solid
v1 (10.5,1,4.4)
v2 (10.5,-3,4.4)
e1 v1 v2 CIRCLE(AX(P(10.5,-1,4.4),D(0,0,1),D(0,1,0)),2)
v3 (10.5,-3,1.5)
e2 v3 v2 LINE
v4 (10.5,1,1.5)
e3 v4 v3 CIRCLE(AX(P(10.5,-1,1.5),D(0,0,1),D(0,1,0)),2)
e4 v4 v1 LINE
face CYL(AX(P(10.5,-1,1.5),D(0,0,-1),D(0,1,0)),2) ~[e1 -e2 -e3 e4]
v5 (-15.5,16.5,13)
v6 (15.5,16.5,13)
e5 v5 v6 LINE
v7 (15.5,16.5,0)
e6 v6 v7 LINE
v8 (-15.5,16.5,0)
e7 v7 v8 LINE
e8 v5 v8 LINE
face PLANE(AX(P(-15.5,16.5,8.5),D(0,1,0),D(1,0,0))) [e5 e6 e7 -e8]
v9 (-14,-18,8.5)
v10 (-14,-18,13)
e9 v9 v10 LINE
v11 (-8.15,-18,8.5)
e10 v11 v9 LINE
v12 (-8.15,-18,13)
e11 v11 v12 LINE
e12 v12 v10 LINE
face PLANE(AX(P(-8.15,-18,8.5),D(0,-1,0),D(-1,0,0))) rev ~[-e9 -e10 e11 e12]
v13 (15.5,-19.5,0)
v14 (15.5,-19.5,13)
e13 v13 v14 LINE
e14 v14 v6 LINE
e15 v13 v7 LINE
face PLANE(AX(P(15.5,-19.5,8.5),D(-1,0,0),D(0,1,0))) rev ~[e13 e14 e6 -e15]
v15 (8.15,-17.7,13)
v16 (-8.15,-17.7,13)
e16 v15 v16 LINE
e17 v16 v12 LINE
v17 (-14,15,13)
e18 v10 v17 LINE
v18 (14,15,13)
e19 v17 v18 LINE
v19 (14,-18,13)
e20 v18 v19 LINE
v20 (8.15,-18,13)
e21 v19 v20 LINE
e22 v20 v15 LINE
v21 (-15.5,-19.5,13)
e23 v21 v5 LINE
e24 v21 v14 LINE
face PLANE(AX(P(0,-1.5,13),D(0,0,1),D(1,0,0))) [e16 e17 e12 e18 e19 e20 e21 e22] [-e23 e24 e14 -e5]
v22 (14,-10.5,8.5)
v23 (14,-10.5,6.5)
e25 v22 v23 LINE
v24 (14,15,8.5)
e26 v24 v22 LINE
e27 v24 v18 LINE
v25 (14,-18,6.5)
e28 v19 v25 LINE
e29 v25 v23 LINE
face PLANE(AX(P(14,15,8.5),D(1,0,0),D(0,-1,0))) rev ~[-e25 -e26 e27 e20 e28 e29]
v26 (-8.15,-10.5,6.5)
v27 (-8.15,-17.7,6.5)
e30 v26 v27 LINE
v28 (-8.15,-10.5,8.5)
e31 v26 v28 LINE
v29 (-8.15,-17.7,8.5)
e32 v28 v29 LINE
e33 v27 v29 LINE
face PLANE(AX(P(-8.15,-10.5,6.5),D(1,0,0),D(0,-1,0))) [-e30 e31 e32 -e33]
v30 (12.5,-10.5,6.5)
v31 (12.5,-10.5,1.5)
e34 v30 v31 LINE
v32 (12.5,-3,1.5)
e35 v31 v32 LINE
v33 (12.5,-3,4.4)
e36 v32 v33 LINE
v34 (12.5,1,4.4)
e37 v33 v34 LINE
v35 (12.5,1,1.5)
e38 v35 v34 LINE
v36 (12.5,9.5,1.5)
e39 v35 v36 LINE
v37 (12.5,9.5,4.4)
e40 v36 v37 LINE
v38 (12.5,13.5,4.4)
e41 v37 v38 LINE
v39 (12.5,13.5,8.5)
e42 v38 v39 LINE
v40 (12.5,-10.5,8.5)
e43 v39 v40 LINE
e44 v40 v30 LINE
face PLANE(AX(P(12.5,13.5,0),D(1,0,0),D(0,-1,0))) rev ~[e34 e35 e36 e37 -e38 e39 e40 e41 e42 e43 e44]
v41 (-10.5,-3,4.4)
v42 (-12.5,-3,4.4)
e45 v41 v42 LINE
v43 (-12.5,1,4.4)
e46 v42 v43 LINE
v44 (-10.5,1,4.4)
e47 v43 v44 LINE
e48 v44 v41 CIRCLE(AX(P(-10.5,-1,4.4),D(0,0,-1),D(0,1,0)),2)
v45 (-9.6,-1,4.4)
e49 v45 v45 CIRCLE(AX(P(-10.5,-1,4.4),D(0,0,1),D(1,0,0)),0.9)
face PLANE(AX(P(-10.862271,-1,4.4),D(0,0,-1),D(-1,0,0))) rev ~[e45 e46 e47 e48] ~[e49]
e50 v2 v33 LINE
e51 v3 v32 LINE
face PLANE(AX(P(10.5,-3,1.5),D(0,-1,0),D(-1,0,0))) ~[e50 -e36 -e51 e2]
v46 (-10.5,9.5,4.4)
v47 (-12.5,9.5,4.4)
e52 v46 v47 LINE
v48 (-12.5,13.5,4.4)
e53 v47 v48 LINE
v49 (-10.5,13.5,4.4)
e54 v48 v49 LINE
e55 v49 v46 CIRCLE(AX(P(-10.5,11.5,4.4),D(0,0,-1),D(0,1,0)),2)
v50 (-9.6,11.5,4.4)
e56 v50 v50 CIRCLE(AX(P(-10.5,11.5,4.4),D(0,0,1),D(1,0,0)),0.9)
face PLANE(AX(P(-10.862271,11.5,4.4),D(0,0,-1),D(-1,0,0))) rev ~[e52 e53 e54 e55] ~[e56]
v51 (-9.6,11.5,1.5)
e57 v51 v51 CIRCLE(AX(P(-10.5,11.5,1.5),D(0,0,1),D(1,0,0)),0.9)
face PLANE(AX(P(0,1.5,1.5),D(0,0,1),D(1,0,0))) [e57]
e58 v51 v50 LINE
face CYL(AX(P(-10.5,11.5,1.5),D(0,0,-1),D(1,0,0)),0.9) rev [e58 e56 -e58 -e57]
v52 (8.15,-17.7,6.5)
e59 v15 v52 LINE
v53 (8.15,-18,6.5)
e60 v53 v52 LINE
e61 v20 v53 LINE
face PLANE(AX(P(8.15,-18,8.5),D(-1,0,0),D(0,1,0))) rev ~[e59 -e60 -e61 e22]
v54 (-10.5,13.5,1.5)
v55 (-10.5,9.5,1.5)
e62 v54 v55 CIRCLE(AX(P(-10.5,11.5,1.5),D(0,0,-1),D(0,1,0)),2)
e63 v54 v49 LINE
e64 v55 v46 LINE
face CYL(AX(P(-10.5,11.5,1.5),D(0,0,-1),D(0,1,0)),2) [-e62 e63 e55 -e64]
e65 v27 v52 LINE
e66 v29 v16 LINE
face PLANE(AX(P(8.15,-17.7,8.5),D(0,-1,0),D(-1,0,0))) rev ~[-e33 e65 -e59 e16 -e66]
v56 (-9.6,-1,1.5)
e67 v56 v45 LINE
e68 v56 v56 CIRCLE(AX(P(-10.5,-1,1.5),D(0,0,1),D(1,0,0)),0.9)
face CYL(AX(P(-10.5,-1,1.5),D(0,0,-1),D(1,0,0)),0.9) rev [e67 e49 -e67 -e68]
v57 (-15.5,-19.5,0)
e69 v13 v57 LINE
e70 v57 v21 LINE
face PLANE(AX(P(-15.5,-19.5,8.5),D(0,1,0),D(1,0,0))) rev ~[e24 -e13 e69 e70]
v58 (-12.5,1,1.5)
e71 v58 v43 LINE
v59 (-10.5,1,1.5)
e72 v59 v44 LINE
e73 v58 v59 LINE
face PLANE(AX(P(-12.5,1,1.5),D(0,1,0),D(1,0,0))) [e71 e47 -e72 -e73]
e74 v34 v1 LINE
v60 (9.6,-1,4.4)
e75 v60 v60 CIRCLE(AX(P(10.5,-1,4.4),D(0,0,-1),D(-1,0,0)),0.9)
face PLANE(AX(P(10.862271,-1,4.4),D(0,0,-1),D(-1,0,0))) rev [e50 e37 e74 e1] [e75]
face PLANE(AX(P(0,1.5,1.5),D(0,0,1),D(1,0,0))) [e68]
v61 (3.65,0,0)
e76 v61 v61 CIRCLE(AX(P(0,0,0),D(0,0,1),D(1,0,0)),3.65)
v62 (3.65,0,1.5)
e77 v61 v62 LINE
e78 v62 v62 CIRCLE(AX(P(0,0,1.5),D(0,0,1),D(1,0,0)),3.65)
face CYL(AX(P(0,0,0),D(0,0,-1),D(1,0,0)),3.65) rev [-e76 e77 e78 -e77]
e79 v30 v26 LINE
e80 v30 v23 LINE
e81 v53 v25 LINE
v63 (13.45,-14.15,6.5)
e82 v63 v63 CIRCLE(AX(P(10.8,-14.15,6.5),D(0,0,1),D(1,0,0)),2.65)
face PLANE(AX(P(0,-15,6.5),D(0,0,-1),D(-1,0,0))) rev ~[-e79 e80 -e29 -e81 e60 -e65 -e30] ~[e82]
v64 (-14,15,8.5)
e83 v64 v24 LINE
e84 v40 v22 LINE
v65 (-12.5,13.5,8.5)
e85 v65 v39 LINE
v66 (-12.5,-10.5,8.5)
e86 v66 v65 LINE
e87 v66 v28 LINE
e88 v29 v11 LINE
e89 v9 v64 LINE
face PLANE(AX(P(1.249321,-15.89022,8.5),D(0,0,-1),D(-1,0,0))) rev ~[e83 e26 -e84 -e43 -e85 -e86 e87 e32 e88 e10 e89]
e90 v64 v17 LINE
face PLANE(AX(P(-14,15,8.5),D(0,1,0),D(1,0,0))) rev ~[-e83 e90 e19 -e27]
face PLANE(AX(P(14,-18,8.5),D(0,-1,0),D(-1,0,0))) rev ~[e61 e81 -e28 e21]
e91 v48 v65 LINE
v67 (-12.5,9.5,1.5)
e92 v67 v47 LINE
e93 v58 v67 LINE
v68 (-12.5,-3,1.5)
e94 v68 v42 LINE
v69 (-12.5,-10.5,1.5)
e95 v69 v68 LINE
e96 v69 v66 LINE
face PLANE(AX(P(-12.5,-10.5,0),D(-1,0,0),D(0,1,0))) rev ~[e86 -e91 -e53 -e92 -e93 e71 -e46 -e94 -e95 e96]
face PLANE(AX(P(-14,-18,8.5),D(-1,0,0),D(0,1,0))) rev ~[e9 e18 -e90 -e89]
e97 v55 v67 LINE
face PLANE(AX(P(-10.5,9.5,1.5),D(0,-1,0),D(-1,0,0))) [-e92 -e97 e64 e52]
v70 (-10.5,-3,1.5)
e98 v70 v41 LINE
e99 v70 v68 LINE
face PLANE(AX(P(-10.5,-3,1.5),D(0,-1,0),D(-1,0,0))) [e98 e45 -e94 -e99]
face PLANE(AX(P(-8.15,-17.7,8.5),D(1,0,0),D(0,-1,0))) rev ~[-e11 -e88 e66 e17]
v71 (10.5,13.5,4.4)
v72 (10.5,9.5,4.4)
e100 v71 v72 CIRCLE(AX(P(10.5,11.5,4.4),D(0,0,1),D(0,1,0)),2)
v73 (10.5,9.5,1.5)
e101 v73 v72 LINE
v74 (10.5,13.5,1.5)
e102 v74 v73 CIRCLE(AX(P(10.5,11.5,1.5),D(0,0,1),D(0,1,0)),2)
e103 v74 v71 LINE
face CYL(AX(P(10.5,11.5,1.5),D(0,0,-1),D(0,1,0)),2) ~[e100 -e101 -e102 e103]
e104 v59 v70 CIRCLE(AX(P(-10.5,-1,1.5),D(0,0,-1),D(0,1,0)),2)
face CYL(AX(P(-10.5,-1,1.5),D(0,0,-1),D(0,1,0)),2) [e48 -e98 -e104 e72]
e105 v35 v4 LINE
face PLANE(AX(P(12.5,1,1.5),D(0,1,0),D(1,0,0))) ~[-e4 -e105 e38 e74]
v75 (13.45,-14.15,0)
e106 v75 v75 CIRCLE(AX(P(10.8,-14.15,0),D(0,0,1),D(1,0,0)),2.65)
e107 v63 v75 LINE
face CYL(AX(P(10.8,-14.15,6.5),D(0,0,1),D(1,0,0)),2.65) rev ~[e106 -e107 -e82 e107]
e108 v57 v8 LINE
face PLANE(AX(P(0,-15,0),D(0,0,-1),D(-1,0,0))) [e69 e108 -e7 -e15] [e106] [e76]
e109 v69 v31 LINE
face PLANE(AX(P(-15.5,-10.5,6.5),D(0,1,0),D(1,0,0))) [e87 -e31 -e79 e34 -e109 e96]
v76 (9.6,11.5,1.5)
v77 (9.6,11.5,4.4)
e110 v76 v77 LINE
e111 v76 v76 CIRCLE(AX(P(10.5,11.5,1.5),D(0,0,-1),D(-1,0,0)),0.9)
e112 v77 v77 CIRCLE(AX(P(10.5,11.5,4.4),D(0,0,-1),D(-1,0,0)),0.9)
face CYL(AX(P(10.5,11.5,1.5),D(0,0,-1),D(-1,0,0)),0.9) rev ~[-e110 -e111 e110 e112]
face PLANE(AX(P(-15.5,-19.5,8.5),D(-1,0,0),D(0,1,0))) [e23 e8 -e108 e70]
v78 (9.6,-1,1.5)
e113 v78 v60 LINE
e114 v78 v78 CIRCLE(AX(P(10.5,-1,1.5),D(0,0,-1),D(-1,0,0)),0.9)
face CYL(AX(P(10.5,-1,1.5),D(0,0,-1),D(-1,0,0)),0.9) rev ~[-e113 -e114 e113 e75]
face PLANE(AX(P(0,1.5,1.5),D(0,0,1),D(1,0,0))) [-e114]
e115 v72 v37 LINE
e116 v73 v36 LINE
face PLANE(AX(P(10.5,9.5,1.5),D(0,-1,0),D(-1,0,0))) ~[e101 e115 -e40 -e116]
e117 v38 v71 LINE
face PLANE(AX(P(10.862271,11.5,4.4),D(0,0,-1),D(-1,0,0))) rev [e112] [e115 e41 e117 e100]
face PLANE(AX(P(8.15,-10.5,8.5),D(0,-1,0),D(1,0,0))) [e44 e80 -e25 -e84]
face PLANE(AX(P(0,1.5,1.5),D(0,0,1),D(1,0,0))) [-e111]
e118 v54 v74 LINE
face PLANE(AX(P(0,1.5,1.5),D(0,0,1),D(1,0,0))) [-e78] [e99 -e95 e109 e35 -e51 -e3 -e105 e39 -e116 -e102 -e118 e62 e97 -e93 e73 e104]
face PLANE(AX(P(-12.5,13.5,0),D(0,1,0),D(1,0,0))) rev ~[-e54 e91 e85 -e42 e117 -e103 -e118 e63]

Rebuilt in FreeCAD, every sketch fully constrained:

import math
import FreeCAD as App
import Part
import Sketcher

V = App.Vector
Q = App.Units.Quantity


def add_polygon(sketch, points):
    """Adds a closed chain of lines whose ends are joined by coincident constraints."""
    first, n = sketch.GeometryCount, len(points)
    for a, b in zip(points, points[1:] + points[:1]):
        sketch.addGeometry(Part.LineSegment(App.Vector(*a, 0), App.Vector(*b, 0)), False)
    for i in range(n):
        sketch.addConstraint(Sketcher.Constraint("Coincident", first + i, 2, first + (i + 1) % n, 1))

doc = App.newDocument("Part")
body = doc.addObject("PartDesign::Body", "Body")

sketch1 = body.newObject("Sketcher::SketchObject", "Sketch")
sketch1.AttachmentSupport = (doc.getObject("XY_Plane"), [""])
sketch1.MapMode = "FlatFace"
add_polygon(sketch1, [(-12.5, 13.5), (-12.5, -10.5), (12.5, -10.5), (12.5, 13.5)])
sketch1.addGeometry(Part.Circle(V(0, 0, 0), V(0, 0, 1), 3.65), False)
sketch1.addConstraint([
    Sketcher.Constraint("Vertical", 0),
    Sketcher.Constraint("Horizontal", 1),
    Sketcher.Constraint("Vertical", 2),
    Sketcher.Constraint("Horizontal", 3),
    Sketcher.Constraint("Coincident", 4, 3, -1, 1),
    Sketcher.Constraint("Diameter", 4, Q("7.3 mm")),
    Sketcher.Constraint("DistanceX", 1, 1, 1, 2, Q("25 mm")),
    Sketcher.Constraint("DistanceY", 0, 2, 0, 1, Q("24 mm")),
    Sketcher.Constraint("DistanceX", 0, 2, -1, 1, Q("12.5 mm")),
    Sketcher.Constraint("DistanceY", 0, 2, -1, 1, Q("10.5 mm")),
])
pad1 = body.newObject("PartDesign::Pad", "Pad")
pad1.Profile = sketch1
pad1.Length = 1.5

sketch2 = body.newObject("Sketcher::SketchObject", "Sketch001")
sketch2.AttachmentSupport = (doc.getObject("XY_Plane"), [""])
sketch2.MapMode = "FlatFace"
add_polygon(sketch2, [(-12.5, 13.5), (-12.5, -10.5), (-15.5, -10.5), (-15.5, 16.5), (15.5, 16.5), (15.5, -10.5), (12.5, -10.5), (12.5, 13.5)])
sketch2.addConstraint([
    Sketcher.Constraint("Vertical", 0),
    Sketcher.Constraint("Horizontal", 1),
    Sketcher.Constraint("Vertical", 2),
    Sketcher.Constraint("Horizontal", 3),
    Sketcher.Constraint("Vertical", 4),
    Sketcher.Constraint("Horizontal", 5),
    Sketcher.Constraint("Vertical", 6),
    Sketcher.Constraint("Horizontal", 7),
    Sketcher.Constraint("Symmetric", 1, 2, 4, 2, -2),
    Sketcher.Constraint("Equal", 1, 5),
    Sketcher.Constraint("DistanceX", 1, 2, 1, 1, Q("3 mm")),
    Sketcher.Constraint("DistanceX", 3, 1, 3, 2, Q("31 mm")),
    Sketcher.Constraint("DistanceY", 0, 2, 0, 1, Q("24 mm")),
    Sketcher.Constraint("DistanceY", 2, 1, 2, 2, Q("27 mm")),
    Sketcher.Constraint("DistanceY", 0, 2, -1, 1, Q("10.5 mm")),
])
pad2 = body.newObject("PartDesign::Pad", "Pad001")
pad2.Profile = sketch2
pad2.Length = 8.5

sketch3 = body.newObject("Sketcher::SketchObject", "Sketch002")
sketch3.AttachmentSupport = (doc.getObject("XY_Plane"), [""])
sketch3.MapMode = "FlatFace"
sketch3.AttachmentOffset = App.Placement(V(0, 0, 1.5), App.Rotation())
sketch3.addGeometry([
    Part.LineSegment(V(-12.5, 9.5, 0), V(-10.5, 9.5, 0)),
    Part.ArcOfCircle(Part.Circle(V(-10.5, 11.5, 0), V(0, 0, 1), 2), math.radians(-90), math.radians(90)),
    Part.LineSegment(V(-10.5, 13.5, 0), V(-12.5, 13.5, 0)),
    Part.LineSegment(V(-12.5, 13.5, 0), V(-12.5, 9.5, 0)),
    Part.Circle(V(-10.5, 11.5, 0), V(0, 0, 1), 0.9),
    Part.LineSegment(V(-12.5, -3, 0), V(-10.5, -3, 0)),
    Part.ArcOfCircle(Part.Circle(V(-10.5, -1, 0), V(0, 0, 1), 2), math.radians(-90), math.radians(90)),
    Part.LineSegment(V(-10.5, 1, 0), V(-12.5, 1, 0)),
    Part.LineSegment(V(-12.5, 1, 0), V(-12.5, -3, 0)),
    Part.Circle(V(-10.5, -1, 0), V(0, 0, 1), 0.9),
], False)
sketch3.addConstraint([
    Sketcher.Constraint("Tangent", 0, 2, 1, 1),
    Sketcher.Constraint("Tangent", 1, 2, 2, 1),
    Sketcher.Constraint("Coincident", 2, 2, 3, 1),
    Sketcher.Constraint("Coincident", 3, 2, 0, 1),
    Sketcher.Constraint("Tangent", 5, 2, 6, 1),
    Sketcher.Constraint("Tangent", 6, 2, 7, 1),
    Sketcher.Constraint("Coincident", 7, 2, 8, 1),
    Sketcher.Constraint("Coincident", 8, 2, 5, 1),
    Sketcher.Constraint("Horizontal", 0),
    Sketcher.Constraint("Horizontal", 2),
    Sketcher.Constraint("Vertical", 3),
    Sketcher.Constraint("Horizontal", 5),
    Sketcher.Constraint("Horizontal", 7),
    Sketcher.Constraint("Vertical", 8),
    Sketcher.Constraint("Coincident", 4, 3, 1, 3),
    Sketcher.Constraint("Coincident", 9, 3, 6, 3),
    Sketcher.Constraint("Equal", 1, 6),
    Sketcher.Constraint("Equal", 4, 9),
    Sketcher.Constraint("Vertical", 4, 3, 6, 3),
    Sketcher.Constraint("Vertical", 3, 2, 7, 2),
    Sketcher.Constraint("Radius", 1, Q("2 mm")),
    Sketcher.Constraint("Diameter", 4, Q("1.8 mm")),
    Sketcher.Constraint("DistanceX", 0, 1, 0, 2, Q("2 mm")),
    Sketcher.Constraint("DistanceY", 6, 3, -1, 1, Q("1 mm")),
    Sketcher.Constraint("DistanceX", 1, 3, -1, 1, Q("10.5 mm")),
    Sketcher.Constraint("DistanceY", -1, 1, 1, 3, Q("11.5 mm")),
])
pad3 = body.newObject("PartDesign::Pad", "Pad002")
pad3.Profile = sketch3
pad3.Length = 2.9
doc.recompute()

mirrored = body.newObject("PartDesign::Mirrored", "Mirrored")
mirrored.Originals = [pad3]
mirrored.MirrorPlane = (doc.getObject("YZ_Plane"), [""])
body.Tip = mirrored

sketch4 = body.newObject("Sketcher::SketchObject", "Sketch003")
sketch4.AttachmentSupport = (doc.getObject("XY_Plane"), [""])
sketch4.MapMode = "FlatFace"
add_polygon(sketch4, [(15.5, -10.5), (15.5, -19.5), (-15.5, -19.5), (-15.5, -10.5)])
sketch4.addConstraint([
    Sketcher.Constraint("Vertical", 0),
    Sketcher.Constraint("Horizontal", 1),
    Sketcher.Constraint("Vertical", 2),
    Sketcher.Constraint("Horizontal", 3),
    Sketcher.Constraint("DistanceX", 1, 2, 1, 1, Q("31 mm")),
    Sketcher.Constraint("DistanceY", 0, 2, 0, 1, Q("9 mm")),
    Sketcher.Constraint("DistanceX", -1, 1, 0, 2, Q("15.5 mm")),
    Sketcher.Constraint("DistanceY", 0, 2, -1, 1, Q("19.5 mm")),
])
pad4 = body.newObject("PartDesign::Pad", "Pad003")
pad4.Profile = sketch4
pad4.Length = 6.5

sketch5 = body.newObject("Sketcher::SketchObject", "Sketch004")
sketch5.AttachmentSupport = (doc.getObject("XY_Plane"), [""])
sketch5.MapMode = "FlatFace"
sketch5.AttachmentOffset = App.Placement(V(0, 0, 6.5), App.Rotation())
sketch5.addGeometry(Part.Circle(V(10.8, -14.15, 0), V(0, 0, 1), 2.65), False)
sketch5.addConstraint([
    Sketcher.Constraint("Diameter", 0, Q("5.3 mm")),
    Sketcher.Constraint("DistanceX", -1, 1, 0, 3, Q("10.8 mm")),
    Sketcher.Constraint("DistanceY", 0, 3, -1, 1, Q("14.15 mm")),
])
pocket1 = body.newObject("PartDesign::Pocket", "Pocket")
pocket1.Profile = sketch5
pocket1.Length = 6.5

sketch6 = body.newObject("Sketcher::SketchObject", "Sketch005")
sketch6.AttachmentSupport = (doc.getObject("XY_Plane"), [""])
sketch6.MapMode = "FlatFace"
sketch6.AttachmentOffset = App.Placement(V(0, 0, 6.5), App.Rotation())
sketch6.addGeometry([
    Part.LineSegment(V(-8.15, -10.5, 0), V(-15.5, -10.5, 0)),
    Part.LineSegment(V(-15.5, -10.5, 0), V(-15.5, -19.5, 0)),
    Part.LineSegment(V(-15.5, -19.5, 0), V(15.5, -19.5, 0)),
    Part.LineSegment(V(15.5, -19.5, 0), V(15.5, -10.5, 0)),
    Part.LineSegment(V(15.5, -10.5, 0), V(8.15, -10.5, 0)),
    Part.LineSegment(V(8.15, -10.5, 0), V(8.15, -13.358125, 0)),
    Part.LineSegment(V(8.15, -13.358125, 0), V(8.27108, -13.358125, 0)),
    Part.ArcOfCircle(Part.Circle(V(10.8, -14.15, 0), V(0, 0, 1), 2.65), math.radians(-166.49704), math.radians(162.613209)),
    Part.LineSegment(V(8.223252, -14.768763, 0), V(8.15, -14.768763, 0)),
    Part.LineSegment(V(8.15, -14.768763, 0), V(8.15, -17.7, 0)),
    Part.LineSegment(V(8.15, -17.7, 0), V(-8.15, -17.7, 0)),
    Part.LineSegment(V(-8.15, -17.7, 0), V(-8.15, -10.5, 0)),
], False)
sketch6.addConstraint([
    Sketcher.Constraint("Coincident", 0, 2, 1, 1),
    Sketcher.Constraint("Coincident", 1, 2, 2, 1),
    Sketcher.Constraint("Coincident", 2, 2, 3, 1),
    Sketcher.Constraint("Coincident", 3, 2, 4, 1),
    Sketcher.Constraint("Coincident", 4, 2, 5, 1),
    Sketcher.Constraint("Coincident", 5, 2, 6, 1),
    Sketcher.Constraint("Coincident", 6, 2, 7, 2),
    Sketcher.Constraint("Coincident", 7, 1, 8, 1),
    Sketcher.Constraint("Coincident", 8, 2, 9, 1),
    Sketcher.Constraint("Coincident", 9, 2, 10, 1),
    Sketcher.Constraint("Coincident", 10, 2, 11, 1),
    Sketcher.Constraint("Coincident", 11, 2, 0, 1),
    Sketcher.Constraint("Horizontal", 0),
    Sketcher.Constraint("Vertical", 1),
    Sketcher.Constraint("Horizontal", 2),
    Sketcher.Constraint("Vertical", 3),
    Sketcher.Constraint("Horizontal", 4),
    Sketcher.Constraint("Vertical", 5),
    Sketcher.Constraint("Horizontal", 6),
    Sketcher.Constraint("Horizontal", 8),
    Sketcher.Constraint("Vertical", 9),
    Sketcher.Constraint("Horizontal", 10),
    Sketcher.Constraint("Vertical", 11),
    Sketcher.Constraint("Symmetric", 0, 2, 3, 2, -2),
    Sketcher.Constraint("Vertical", 5, 2, 8, 2),
    Sketcher.Constraint("Equal", 0, 4),
    Sketcher.Constraint("DistanceX", 2, 1, 2, 2, Q("31 mm")),
    Sketcher.Constraint("DistanceY", 1, 2, 1, 1, Q("9 mm")),
    Sketcher.Constraint("Radius", 7, Q("2.65 mm")),
    Sketcher.Constraint("DistanceX", 10, 2, 10, 1, Q("16.3 mm")),
    Sketcher.Constraint("DistanceY", 11, 1, 11, 2, Q("7.2 mm")),
    Sketcher.Constraint("DistanceX", -1, 1, 7, 3, Q("10.8 mm")),
    Sketcher.Constraint("DistanceY", 0, 2, -1, 1, Q("10.5 mm")),
    Sketcher.Constraint("DistanceY", 7, 3, -1, 1, Q("14.15 mm")),
    Sketcher.Constraint("DistanceX", 6, 1, 6, 2, Q("0.12108 mm")),
    Sketcher.Constraint("DistanceX", 8, 2, 8, 1, Q("0.073252 mm")),
])
pad5 = body.newObject("PartDesign::Pad", "Pad004")
pad5.Profile = sketch6
pad5.Length = 2

sketch7 = body.newObject("Sketcher::SketchObject", "Sketch006")
sketch7.AttachmentSupport = (doc.getObject("XY_Plane"), [""])
sketch7.MapMode = "FlatFace"
sketch7.AttachmentOffset = App.Placement(V(0, 0, 8.5), App.Rotation())
add_polygon(sketch7, [(-15.5, 16.5), (-15.5, -19.5), (15.5, -19.5), (15.5, 16.5)])
add_polygon(sketch7, [(-14, -18), (-14, 15), (14, 15), (14, -18), (8.15, -18), (8.15, -17.7), (-8.15, -17.7), (-8.15, -18)])
sketch7.addConstraint([
    Sketcher.Constraint("Vertical", 0),
    Sketcher.Constraint("Horizontal", 1),
    Sketcher.Constraint("Vertical", 2),
    Sketcher.Constraint("Horizontal", 3),
    Sketcher.Constraint("Vertical", 4),
    Sketcher.Constraint("Horizontal", 5),
    Sketcher.Constraint("Vertical", 6),
    Sketcher.Constraint("Horizontal", 7),
    Sketcher.Constraint("Vertical", 8),
    Sketcher.Constraint("Horizontal", 9),
    Sketcher.Constraint("Vertical", 10),
    Sketcher.Constraint("Horizontal", 11),
    Sketcher.Constraint("Symmetric", 7, 2, 10, 2, -2),
    Sketcher.Constraint("Equal", 7, 11),
    Sketcher.Constraint("DistanceX", 1, 1, 1, 2, Q("31 mm")),
    Sketcher.Constraint("DistanceX", 5, 1, 5, 2, Q("28 mm")),
    Sketcher.Constraint("DistanceY", 0, 2, 0, 1, Q("36 mm")),
    Sketcher.Constraint("DistanceY", 4, 1, 4, 2, Q("33 mm")),
    Sketcher.Constraint("DistanceX", 9, 2, 9, 1, Q("16.3 mm")),
    Sketcher.Constraint("DistanceY", 8, 1, 8, 2, Q("0.3 mm")),
    Sketcher.Constraint("DistanceY", -1, 1, 4, 2, Q("15 mm")),
    Sketcher.Constraint("DistanceX", 0, 2, -1, 1, Q("15.5 mm")),
    Sketcher.Constraint("DistanceY", 0, 2, -1, 1, Q("19.5 mm")),
])
pad6 = body.newObject("PartDesign::Pad", "Pad005")
pad6.Profile = sketch7
pad6.Length = 4.5

sketch8 = body.newObject("Sketcher::SketchObject", "Sketch007")
sketch8.AttachmentSupport = (doc.getObject("XY_Plane"), [""])
sketch8.MapMode = "FlatFace"
sketch8.AttachmentOffset = App.Placement(V(0, 0, 8.5), App.Rotation())
add_polygon(sketch8, [(8.15, -10.5), (8.15, -18), (14, -18), (14, -10.5)])
sketch8.addConstraint([
    Sketcher.Constraint("Vertical", 0),
    Sketcher.Constraint("Horizontal", 1),
    Sketcher.Constraint("Vertical", 2),
    Sketcher.Constraint("Horizontal", 3),
    Sketcher.Constraint("DistanceY", 0, 2, 0, 1, Q("7.5 mm")),
    Sketcher.Constraint("DistanceY", 0, 2, -1, 1, Q("18 mm")),
    Sketcher.Constraint("DistanceX", -1, 1, 1, 2, Q("14 mm")),
    Sketcher.Constraint("DistanceX", 1, 1, 1, 2, Q("5.85 mm")),
])
pocket2 = body.newObject("PartDesign::Pocket", "Pocket001")
pocket2.Profile = sketch8
pocket2.Length = 2

doc.recompute()
